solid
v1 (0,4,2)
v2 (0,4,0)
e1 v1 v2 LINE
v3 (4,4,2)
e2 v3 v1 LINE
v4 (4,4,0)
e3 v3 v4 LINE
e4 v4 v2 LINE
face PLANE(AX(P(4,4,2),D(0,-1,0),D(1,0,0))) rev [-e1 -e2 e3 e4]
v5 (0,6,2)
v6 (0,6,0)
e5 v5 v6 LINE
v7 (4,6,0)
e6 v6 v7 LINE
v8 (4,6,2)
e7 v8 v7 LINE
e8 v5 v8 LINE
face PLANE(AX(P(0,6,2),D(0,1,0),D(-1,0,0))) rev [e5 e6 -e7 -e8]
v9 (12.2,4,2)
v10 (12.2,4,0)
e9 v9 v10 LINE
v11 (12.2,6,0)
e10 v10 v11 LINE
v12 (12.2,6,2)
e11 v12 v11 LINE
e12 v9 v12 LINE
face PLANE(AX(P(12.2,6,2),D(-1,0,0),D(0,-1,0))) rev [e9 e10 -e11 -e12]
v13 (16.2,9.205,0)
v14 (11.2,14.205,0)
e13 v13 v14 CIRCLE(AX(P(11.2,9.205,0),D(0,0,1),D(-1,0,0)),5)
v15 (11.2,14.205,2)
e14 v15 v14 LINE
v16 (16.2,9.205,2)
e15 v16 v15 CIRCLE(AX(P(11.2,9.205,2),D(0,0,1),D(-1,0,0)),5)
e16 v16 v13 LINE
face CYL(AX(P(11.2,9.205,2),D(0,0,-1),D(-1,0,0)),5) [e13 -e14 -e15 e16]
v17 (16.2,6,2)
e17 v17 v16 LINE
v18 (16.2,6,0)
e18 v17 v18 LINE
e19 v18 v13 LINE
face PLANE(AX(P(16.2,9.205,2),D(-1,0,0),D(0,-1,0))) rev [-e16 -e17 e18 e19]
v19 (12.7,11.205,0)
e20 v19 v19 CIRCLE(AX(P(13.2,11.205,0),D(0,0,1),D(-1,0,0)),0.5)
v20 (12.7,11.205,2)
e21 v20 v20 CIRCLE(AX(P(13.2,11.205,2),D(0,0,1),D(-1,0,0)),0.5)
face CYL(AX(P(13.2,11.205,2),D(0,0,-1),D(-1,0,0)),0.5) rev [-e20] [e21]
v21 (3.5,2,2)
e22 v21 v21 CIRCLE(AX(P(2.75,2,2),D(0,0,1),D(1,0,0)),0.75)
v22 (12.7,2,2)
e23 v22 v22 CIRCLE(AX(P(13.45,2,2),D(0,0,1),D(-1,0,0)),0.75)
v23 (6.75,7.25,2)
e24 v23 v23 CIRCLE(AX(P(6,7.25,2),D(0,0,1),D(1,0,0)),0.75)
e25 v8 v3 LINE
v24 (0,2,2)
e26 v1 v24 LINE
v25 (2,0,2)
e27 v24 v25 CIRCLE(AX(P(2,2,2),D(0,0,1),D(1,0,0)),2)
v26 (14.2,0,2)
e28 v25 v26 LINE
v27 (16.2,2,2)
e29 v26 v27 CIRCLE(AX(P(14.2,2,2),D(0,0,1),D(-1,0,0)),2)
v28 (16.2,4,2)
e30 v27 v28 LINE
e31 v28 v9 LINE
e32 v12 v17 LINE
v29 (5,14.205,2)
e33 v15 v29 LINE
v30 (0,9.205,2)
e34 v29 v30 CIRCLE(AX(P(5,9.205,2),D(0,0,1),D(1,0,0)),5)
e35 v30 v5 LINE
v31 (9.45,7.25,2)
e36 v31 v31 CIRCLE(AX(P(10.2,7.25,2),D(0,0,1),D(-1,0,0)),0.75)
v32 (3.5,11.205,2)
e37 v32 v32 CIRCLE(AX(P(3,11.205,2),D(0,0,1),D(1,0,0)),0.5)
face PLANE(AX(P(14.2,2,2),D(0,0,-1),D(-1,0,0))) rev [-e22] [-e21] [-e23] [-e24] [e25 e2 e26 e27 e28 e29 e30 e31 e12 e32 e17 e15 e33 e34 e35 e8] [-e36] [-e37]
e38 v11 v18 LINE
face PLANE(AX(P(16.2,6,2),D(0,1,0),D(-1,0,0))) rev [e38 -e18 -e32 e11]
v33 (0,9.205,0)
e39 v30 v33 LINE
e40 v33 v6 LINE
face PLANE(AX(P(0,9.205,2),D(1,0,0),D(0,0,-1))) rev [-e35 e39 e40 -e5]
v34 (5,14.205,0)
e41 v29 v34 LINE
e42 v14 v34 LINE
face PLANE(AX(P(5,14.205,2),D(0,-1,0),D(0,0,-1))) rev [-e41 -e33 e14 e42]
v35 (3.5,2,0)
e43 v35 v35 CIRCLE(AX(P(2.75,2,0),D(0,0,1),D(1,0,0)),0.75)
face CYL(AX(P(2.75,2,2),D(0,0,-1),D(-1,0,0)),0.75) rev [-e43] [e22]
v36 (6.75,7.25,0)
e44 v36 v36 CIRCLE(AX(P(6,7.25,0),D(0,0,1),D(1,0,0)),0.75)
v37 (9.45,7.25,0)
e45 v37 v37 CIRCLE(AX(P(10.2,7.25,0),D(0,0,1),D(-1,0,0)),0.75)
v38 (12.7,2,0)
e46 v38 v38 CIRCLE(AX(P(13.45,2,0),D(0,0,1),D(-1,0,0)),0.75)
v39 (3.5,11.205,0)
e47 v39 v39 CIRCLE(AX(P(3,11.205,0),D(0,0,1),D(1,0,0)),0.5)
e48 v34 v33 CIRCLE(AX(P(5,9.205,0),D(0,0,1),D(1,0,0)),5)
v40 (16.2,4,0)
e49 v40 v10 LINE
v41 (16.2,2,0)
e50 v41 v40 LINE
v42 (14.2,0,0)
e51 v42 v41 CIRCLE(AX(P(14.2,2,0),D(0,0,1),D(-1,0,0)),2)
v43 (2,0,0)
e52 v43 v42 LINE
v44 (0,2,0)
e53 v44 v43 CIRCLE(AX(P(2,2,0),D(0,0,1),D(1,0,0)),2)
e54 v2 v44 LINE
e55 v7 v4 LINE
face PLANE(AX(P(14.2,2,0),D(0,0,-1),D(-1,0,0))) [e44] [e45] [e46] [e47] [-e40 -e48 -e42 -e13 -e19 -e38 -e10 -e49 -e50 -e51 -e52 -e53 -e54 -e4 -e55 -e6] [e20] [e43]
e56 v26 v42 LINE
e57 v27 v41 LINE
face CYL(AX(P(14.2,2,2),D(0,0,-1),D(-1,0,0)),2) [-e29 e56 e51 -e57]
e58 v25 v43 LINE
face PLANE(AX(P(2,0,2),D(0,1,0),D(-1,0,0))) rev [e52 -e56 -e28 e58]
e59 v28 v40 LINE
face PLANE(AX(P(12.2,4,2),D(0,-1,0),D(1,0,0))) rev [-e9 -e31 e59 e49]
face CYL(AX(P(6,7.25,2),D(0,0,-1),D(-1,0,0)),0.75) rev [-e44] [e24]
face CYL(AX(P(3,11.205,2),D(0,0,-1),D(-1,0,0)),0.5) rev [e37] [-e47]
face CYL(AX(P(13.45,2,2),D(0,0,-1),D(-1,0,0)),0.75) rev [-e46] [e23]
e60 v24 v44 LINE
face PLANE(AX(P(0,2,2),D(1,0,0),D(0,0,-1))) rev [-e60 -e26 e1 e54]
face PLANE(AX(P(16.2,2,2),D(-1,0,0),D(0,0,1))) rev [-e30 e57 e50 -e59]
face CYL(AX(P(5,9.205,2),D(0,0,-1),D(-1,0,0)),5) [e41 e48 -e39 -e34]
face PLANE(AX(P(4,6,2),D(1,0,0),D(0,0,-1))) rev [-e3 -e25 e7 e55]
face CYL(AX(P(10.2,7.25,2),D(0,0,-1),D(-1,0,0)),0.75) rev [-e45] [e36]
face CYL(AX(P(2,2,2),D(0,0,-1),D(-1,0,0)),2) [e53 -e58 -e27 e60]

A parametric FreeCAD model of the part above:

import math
import FreeCAD as App
import Part
import Sketcher
from FreeCAD import Vector

doc = App.newDocument("Part")
params = doc.addObject("Spreadsheet::Sheet", "Params")
for row, (alias, value) in enumerate([
    ("sketch1_diameter", "1 mm"),
    ("sketch1_radius", "5 mm"),
    ("sketch1_radius2", "2 mm"),
    ("sketch1_diameter2", "1.5 mm"),
    ("sketch1_width", "4 mm"),
    ("pad1_length", "2 mm"),
], start=1):
    params.set(f"A{row}", alias)
    params.set(f"B{row}", "=" + value)
    params.setAlias(f"B{row}", alias)

body = doc.addObject("PartDesign::Body", "Body")

sketch1 = doc.addObject("Sketcher::SketchObject", "Sketch")
body.addObject(sketch1)
sketch1.AttachmentSupport = (doc.XY_Plane, [""])
sketch1.MapMode = "FlatFace"
sketch1.addGeometry([
    Part.LineSegment(Vector(16.2, 4, 0), Vector(12.2, 4, 0)),
    Part.LineSegment(Vector(12.2, 4, 0), Vector(12.2, 6, 0)),
    Part.LineSegment(Vector(12.2, 6, 0), Vector(16.2, 6, 0)),
    Part.LineSegment(Vector(16.2, 6, 0), Vector(16.2, 9.2, 0)),
    Part.ArcOfCircle(Part.Circle(Vector(11.2, 9.2, 0), Vector(0, 0, 1), 5), math.radians(0), math.radians(90)),
    Part.LineSegment(Vector(11.2, 14.2, 0), Vector(5, 14.2, 0)),
    Part.ArcOfCircle(Part.Circle(Vector(5, 9.2, 0), Vector(0, 0, 1), 5), math.radians(90), math.radians(180)),
    Part.LineSegment(Vector(0, 9.2, 0), Vector(0, 6, 0)),
    Part.LineSegment(Vector(0, 6, 0), Vector(4, 6, 0)),
    Part.LineSegment(Vector(4, 6, 0), Vector(4, 4, 0)),
    Part.LineSegment(Vector(4, 4, 0), Vector(0, 4, 0)),
    Part.LineSegment(Vector(0, 4, 0), Vector(0, 2, 0)),
    Part.ArcOfCircle(Part.Circle(Vector(2, 2, 0), Vector(0, 0, 1), 2), math.radians(-180), math.radians(-90)),
    Part.LineSegment(Vector(2, 0, 0), Vector(14.2, 0, 0)),
    Part.ArcOfCircle(Part.Circle(Vector(14.2, 2, 0), Vector(0, 0, 1), 2), math.radians(-90), math.radians(0)),
    Part.LineSegment(Vector(16.2, 2, 0), Vector(16.2, 4, 0)),
    Part.Circle(Vector(13.4, 2, 0), Vector(0, 0, 1), 0.8),
    Part.Circle(Vector(2.8, 2, 0), Vector(0, 0, 1), 0.8),
    Part.Circle(Vector(10.2, 7.2, 0), Vector(0, 0, 1), 0.8),
    Part.Circle(Vector(13.2, 11.2, 0), Vector(0, 0, 1), 0.5),
    Part.Circle(Vector(6, 7.2, 0), Vector(0, 0, 1), 0.8),
    Part.Circle(Vector(3, 11.2, 0), Vector(0, 0, 1), 0.5),
], False)
sketch1.addConstraint([
    Sketcher.Constraint("Coincident", 0, 2, 1, 1),
    Sketcher.Constraint("Coincident", 1, 2, 2, 1),
    Sketcher.Constraint("Coincident", 2, 2, 3, 1),
    Sketcher.Constraint("Tangent", 3, 2, 4, 1),
    Sketcher.Constraint("Tangent", 4, 2, 5, 1),
    Sketcher.Constraint("Tangent", 5, 2, 6, 1),
    Sketcher.Constraint("Tangent", 6, 2, 7, 1),
    Sketcher.Constraint("Coincident", 7, 2, 8, 1),
    Sketcher.Constraint("Coincident", 8, 2, 9, 1),
    Sketcher.Constraint("Coincident", 9, 2, 10, 1),
    Sketcher.Constraint("Coincident", 10, 2, 11, 1),
    Sketcher.Constraint("Tangent", 11, 2, 12, 1),
    Sketcher.Constraint("Tangent", 12, 2, 13, 1),
    Sketcher.Constraint("Tangent", 13, 2, 14, 1),
    Sketcher.Constraint("Tangent", 14, 2, 15, 1),
    Sketcher.Constraint("Coincident", 15, 2, 0, 1),
    Sketcher.Constraint("Horizontal", 0),
    Sketcher.Constraint("Vertical", 1),
    Sketcher.Constraint("Horizontal", 2),
    Sketcher.Constraint("Vertical", 3),
    Sketcher.Constraint("Horizontal", 5),
    Sketcher.Constraint("Vertical", 7),
    Sketcher.Constraint("Horizontal", 8),
    Sketcher.Constraint("Vertical", 9),
    Sketcher.Constraint("Horizontal", 10),
    Sketcher.Constraint("Vertical", 11),
    Sketcher.Constraint("Horizontal", 13),
    Sketcher.Constraint("Vertical", 15),
    Sketcher.Constraint("Equal", 4, 6),
    Sketcher.Constraint("Equal", 12, 14),
    Sketcher.Constraint("Equal", 16, 17),
    Sketcher.Constraint("Equal", 17, 18),
    Sketcher.Constraint("Equal", 18, 20),
    Sketcher.Constraint("Equal", 19, 21),
    Sketcher.Constraint("PointOnObject", 6, 2, -2),
    Sketcher.Constraint("PointOnObject", 10, 2, -2),
    Sketcher.Constraint("PointOnObject", 12, 2, -1),
    Sketcher.Constraint("Horizontal", 14, 3, 16, 3),
    Sketcher.Constraint("Horizontal", 16, 3, 17, 3),
    Sketcher.Constraint("Horizontal", 18, 3, 20, 3),
    Sketcher.Constraint("Horizontal", 19, 3, 21, 3),
    Sketcher.Constraint("Horizontal", 2, 2, 7, 2),
    Sketcher.Constraint("Horizontal", 0, 2, 9, 2),
    Sketcher.Constraint("Vertical", 3, 2, 14, 2),
    Sketcher.Constraint("Equal", 2, 8),
    Sketcher.Constraint("Equal", 9, 11),
    Sketcher.Constraint("Diameter", 19, 1.0),
    Sketcher.Constraint("Radius", 4, 5.0),
    Sketcher.Constraint("Radius", 12, 2.0),
    Sketcher.Constraint("Diameter", 16, 1.5),
    Sketcher.Constraint("DistanceX", 0, 2, 0, 1, 4.0),
    Sketcher.Constraint("DistanceY", 1, 1, 1, 2, 2.0),
    Sketcher.Constraint("DistanceX", 5, 2, 5, 1, 6.2),
    Sketcher.Constraint("DistanceX", -1, 1, 20, 3, 6.0),
    Sketcher.Constraint("DistanceX", -1, 1, 21, 3, 3.0),
    Sketcher.Constraint("DistanceX", 18, 3, 4, 3, 1.0),
    Sketcher.Constraint("DistanceX", 4, 3, 19, 3, 2.0),
    Sketcher.Constraint("DistanceY", 4, 3, 19, 3, 2.0),
    Sketcher.Constraint("DistanceX", 17, 3, 16, 3, 10.7),
    Sketcher.Constraint("DistanceY", 3, 1, 3, 2, 3.205),
    Sketcher.Constraint("DistanceX", -1, 1, 16, 3, 13.45),
    Sketcher.Constraint("DistanceY", -1, 1, 18, 3, 7.25),
])
sketch1.setExpression("Constraints[46]", "Params.sketch1_diameter")
sketch1.setExpression("Constraints[47]", "Params.sketch1_radius")
sketch1.setExpression("Constraints[48]", "Params.sketch1_radius2")
sketch1.setExpression("Constraints[49]", "Params.sketch1_diameter2")
sketch1.setExpression("Constraints[50]", "Params.sketch1_width")
pad1 = doc.addObject("PartDesign::Pad", "Pad")
body.addObject(pad1)
pad1.Profile = sketch1
pad1.setExpression("Length", "Params.pad1_length")

doc.recompute()
